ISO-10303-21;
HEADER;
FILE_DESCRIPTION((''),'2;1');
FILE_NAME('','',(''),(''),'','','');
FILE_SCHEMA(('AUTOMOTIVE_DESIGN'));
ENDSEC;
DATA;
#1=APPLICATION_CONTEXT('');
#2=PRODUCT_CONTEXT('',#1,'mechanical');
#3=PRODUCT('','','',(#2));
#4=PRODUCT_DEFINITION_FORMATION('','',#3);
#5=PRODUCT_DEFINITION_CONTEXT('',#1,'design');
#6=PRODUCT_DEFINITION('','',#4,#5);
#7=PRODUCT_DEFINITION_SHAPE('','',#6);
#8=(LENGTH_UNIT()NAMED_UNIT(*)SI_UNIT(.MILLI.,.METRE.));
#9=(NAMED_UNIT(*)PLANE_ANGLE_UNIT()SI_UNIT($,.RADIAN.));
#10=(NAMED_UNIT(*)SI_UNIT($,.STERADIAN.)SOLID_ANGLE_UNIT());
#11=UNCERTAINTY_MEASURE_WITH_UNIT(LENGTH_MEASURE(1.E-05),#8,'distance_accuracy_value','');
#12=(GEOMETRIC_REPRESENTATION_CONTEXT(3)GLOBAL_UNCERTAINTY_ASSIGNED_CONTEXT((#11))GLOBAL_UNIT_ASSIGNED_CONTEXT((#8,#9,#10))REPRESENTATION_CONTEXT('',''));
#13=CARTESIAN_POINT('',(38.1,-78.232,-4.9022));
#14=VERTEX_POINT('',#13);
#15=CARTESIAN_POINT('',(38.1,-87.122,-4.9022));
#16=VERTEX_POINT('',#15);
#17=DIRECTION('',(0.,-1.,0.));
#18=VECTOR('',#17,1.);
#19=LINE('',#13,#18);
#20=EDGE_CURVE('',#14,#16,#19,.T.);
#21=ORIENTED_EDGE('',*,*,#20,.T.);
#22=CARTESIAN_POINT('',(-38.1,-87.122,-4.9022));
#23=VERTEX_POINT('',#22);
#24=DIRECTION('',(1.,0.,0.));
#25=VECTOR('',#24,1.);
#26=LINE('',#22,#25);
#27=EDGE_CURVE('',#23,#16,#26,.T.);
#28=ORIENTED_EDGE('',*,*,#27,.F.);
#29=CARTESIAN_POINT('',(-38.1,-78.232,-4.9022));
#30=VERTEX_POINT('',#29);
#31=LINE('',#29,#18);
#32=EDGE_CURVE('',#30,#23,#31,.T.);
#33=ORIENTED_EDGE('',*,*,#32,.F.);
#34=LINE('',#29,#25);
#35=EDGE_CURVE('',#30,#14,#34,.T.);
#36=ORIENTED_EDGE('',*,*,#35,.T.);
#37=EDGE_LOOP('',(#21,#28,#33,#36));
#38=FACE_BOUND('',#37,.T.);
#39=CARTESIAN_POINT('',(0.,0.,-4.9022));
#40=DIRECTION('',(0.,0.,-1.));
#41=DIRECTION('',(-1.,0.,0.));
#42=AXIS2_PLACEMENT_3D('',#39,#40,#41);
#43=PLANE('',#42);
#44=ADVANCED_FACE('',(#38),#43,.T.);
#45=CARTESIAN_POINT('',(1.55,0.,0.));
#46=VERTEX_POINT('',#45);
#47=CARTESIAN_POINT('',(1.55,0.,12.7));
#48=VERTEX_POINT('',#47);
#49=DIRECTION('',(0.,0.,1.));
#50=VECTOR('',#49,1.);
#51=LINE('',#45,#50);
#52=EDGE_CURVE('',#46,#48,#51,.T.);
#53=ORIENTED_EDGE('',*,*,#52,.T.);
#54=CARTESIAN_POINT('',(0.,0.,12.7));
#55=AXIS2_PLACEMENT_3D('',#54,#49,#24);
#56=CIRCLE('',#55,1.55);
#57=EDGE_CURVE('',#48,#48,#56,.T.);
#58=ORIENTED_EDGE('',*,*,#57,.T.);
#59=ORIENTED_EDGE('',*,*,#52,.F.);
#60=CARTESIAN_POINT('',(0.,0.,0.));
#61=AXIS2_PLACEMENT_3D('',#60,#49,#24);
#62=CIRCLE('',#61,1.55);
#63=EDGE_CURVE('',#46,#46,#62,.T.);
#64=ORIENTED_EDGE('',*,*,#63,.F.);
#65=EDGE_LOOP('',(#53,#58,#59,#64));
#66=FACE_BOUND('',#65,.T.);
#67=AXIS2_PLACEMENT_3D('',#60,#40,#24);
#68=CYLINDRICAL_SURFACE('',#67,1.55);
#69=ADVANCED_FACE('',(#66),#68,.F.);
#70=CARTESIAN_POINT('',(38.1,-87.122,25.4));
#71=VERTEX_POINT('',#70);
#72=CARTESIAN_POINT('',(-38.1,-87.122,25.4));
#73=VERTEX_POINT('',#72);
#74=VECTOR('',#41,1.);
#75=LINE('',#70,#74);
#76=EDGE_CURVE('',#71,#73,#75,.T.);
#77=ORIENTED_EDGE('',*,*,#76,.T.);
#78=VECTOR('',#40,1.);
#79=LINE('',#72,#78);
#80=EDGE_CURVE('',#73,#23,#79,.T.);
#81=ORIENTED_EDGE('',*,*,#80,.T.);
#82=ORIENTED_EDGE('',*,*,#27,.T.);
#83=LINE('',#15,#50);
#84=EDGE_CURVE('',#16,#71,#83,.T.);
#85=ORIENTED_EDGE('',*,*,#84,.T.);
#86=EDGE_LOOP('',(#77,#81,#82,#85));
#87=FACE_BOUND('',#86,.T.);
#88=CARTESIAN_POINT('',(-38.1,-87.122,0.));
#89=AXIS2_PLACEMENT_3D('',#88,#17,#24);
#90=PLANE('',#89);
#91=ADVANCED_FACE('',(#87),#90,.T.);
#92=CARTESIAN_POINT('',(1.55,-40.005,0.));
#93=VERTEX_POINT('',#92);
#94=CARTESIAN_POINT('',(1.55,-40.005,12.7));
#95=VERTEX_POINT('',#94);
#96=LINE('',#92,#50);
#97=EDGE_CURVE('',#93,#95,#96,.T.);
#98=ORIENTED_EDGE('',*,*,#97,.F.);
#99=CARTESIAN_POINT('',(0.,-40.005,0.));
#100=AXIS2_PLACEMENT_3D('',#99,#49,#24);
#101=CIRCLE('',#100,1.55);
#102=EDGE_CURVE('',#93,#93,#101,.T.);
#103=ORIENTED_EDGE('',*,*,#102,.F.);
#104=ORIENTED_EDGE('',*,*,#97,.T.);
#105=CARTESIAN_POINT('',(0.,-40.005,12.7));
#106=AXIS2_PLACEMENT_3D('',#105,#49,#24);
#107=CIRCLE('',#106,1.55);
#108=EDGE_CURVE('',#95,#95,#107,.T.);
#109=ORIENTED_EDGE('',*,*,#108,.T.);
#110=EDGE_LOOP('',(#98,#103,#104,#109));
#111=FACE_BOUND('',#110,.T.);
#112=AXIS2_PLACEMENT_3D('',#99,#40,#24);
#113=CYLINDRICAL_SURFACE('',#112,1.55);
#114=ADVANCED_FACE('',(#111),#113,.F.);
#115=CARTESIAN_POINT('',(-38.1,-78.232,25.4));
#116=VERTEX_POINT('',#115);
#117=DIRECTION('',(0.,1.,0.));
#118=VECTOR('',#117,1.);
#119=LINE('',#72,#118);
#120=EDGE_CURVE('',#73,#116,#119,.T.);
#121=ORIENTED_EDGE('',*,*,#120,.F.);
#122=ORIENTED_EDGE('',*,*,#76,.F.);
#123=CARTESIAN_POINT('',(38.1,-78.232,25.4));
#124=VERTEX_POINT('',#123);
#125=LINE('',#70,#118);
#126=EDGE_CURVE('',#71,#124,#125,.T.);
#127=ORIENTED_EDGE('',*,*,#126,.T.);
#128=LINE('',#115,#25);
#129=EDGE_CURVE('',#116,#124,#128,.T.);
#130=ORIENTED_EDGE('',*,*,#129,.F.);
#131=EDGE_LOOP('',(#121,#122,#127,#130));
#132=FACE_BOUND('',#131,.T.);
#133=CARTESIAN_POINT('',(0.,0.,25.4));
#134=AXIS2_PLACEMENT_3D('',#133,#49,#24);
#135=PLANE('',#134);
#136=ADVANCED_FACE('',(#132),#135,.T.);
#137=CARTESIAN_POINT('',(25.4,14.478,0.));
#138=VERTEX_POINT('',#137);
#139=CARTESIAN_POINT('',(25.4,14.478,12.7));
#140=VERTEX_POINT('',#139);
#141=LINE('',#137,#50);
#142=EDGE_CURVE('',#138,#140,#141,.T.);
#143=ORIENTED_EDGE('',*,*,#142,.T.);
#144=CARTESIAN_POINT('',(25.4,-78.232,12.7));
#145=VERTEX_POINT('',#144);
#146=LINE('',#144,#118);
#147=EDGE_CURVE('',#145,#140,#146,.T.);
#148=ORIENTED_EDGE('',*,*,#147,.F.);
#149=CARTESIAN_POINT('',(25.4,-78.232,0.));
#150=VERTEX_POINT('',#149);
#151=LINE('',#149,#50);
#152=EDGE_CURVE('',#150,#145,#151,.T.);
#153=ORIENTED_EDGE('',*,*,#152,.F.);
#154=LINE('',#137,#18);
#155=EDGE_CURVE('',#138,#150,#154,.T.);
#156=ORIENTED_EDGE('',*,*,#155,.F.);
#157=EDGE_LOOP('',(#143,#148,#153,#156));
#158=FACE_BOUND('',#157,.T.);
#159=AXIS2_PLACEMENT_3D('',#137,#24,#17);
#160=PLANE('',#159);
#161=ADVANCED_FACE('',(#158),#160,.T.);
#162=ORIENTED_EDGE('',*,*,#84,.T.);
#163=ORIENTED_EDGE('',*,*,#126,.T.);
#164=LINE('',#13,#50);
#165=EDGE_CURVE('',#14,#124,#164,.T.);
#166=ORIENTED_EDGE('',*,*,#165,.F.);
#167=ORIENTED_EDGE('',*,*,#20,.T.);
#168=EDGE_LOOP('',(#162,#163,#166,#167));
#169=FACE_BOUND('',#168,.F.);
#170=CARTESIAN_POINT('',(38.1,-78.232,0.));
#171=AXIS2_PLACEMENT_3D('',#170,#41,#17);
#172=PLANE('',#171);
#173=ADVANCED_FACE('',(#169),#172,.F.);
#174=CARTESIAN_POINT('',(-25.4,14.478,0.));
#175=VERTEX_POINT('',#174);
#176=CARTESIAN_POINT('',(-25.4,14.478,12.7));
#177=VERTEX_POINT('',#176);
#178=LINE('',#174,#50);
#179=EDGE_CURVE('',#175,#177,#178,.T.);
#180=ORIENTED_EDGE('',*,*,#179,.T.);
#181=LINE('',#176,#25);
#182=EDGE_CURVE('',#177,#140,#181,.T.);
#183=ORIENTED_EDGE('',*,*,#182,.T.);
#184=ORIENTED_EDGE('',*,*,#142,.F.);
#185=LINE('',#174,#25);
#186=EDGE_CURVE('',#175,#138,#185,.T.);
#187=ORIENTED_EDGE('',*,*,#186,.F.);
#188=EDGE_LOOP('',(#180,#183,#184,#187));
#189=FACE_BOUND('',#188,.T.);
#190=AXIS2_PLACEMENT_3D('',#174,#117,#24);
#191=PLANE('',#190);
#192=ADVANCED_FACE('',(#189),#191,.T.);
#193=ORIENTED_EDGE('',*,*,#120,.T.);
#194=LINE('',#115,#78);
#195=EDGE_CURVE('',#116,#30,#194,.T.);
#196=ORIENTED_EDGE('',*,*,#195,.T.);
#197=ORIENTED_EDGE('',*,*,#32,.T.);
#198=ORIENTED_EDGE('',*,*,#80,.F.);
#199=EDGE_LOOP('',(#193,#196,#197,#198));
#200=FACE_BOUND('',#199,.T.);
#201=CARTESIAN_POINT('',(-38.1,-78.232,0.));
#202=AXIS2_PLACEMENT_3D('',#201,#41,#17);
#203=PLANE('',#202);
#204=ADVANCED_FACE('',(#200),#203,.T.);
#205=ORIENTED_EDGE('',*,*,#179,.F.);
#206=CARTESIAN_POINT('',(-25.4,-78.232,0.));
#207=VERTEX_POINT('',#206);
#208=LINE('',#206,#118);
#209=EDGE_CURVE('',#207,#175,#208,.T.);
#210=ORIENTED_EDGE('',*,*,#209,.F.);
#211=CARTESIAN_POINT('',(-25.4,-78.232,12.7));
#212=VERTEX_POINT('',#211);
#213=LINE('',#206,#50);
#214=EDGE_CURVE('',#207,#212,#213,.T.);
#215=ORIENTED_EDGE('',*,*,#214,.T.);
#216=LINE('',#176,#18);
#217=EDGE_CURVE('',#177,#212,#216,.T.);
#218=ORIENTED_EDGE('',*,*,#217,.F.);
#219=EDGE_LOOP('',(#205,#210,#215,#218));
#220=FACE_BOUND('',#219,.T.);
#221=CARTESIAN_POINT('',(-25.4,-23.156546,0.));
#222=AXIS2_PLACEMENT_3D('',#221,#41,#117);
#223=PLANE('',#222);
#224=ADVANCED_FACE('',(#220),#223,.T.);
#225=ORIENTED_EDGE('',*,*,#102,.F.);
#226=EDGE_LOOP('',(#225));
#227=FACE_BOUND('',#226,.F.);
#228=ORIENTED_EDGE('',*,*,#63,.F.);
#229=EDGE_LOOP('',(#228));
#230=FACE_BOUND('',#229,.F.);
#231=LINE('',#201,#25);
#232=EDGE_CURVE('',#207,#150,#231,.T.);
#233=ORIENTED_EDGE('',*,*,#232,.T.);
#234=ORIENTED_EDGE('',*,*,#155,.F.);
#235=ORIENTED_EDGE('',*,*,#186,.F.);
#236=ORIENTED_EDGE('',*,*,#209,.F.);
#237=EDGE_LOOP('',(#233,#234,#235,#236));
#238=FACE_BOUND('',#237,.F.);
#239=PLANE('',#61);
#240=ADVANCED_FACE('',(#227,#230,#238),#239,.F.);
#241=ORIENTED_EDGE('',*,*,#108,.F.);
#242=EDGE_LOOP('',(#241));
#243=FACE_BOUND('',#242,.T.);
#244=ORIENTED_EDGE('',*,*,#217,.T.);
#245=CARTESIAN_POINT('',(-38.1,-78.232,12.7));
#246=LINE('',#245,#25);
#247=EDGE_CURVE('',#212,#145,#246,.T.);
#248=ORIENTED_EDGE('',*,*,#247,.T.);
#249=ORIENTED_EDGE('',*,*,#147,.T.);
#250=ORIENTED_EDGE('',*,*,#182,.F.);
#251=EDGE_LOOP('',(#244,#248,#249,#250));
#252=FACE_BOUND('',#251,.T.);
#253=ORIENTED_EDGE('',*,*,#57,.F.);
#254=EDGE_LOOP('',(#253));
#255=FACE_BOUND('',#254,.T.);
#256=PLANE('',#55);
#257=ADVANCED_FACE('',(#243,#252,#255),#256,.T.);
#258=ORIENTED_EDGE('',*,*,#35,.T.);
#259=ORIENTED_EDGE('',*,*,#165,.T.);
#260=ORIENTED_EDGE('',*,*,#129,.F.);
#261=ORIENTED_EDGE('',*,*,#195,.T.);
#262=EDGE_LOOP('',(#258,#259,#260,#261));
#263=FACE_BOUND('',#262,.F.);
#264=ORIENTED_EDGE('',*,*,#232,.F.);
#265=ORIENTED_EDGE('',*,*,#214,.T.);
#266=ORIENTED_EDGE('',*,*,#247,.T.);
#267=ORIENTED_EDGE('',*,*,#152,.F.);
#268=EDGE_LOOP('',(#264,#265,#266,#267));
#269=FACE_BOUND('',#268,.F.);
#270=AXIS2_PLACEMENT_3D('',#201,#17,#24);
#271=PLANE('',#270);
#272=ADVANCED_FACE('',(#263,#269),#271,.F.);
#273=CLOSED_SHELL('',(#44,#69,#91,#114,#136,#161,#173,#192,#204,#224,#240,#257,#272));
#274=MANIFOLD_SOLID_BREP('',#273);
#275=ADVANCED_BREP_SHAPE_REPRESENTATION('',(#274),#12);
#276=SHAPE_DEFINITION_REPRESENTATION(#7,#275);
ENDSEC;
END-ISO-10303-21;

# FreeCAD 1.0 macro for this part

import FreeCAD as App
import Part
import Sketcher
Q = App.Units.Quantity

doc = App.newDocument("Part")
body = doc.addObject("PartDesign::Body", "Body")

sketch1 = body.newObject("Sketcher::SketchObject", "Sketch")
sketch1.AttachmentSupport = (doc.getObject("XY_Plane"), [""])
sketch1.MapMode = "FlatFace"
sketch1.addGeometry(Part.LineSegment(App.Vector(-25.4, 14.478, 0), App.Vector(-25.4, -78.232, 0)), False)
sketch1.addGeometry(Part.LineSegment(App.Vector(-25.4, -78.232, 0), App.Vector(-38.1, -78.232, 0)), False)
sketch1.addGeometry(Part.LineSegment(App.Vector(-38.1, -78.232, 0), App.Vector(-38.1, -87.122, 0)), False)
sketch1.addGeometry(Part.LineSegment(App.Vector(-38.1, -87.122, 0), App.Vector(38.1, -87.122, 0)), False)
sketch1.addGeometry(Part.LineSegment(App.Vector(38.1, -87.122, 0), App.Vector(38.1, -78.232, 0)), False)
sketch1.addGeometry(Part.LineSegment(App.Vector(38.1, -78.232, 0), App.Vector(25.4, -78.232, 0)), False)
sketch1.addGeometry(Part.LineSegment(App.Vector(25.4, -78.232, 0), App.Vector(25.4, 14.478, 0)), False)
sketch1.addGeometry(Part.LineSegment(App.Vector(25.4, 14.478, 0), App.Vector(-25.4, 14.478, 0)), False)
sketch1.addGeometry(Part.Circle(App.Vector(0, 0, 0), App.Vector(0, 0, 1), 1.55), False)
sketch1.addGeometry(Part.Circle(App.Vector(0, -40.005, 0), App.Vector(0, 0, 1), 1.55), False)
sketch1.addConstraint(Sketcher.Constraint("Coincident", 0, 2, 1, 1))
sketch1.addConstraint(Sketcher.Constraint("Coincident", 1, 2, 2, 1))
sketch1.addConstraint(Sketcher.Constraint("Coincident", 2, 2, 3, 1))
sketch1.addConstraint(Sketcher.Constraint("Coincident", 3, 2, 4, 1))
sketch1.addConstraint(Sketcher.Constraint("Coincident", 4, 2, 5, 1))
sketch1.addConstraint(Sketcher.Constraint("Coincident", 5, 2, 6, 1))
sketch1.addConstraint(Sketcher.Constraint("Coincident", 6, 2, 7, 1))
sketch1.addConstraint(Sketcher.Constraint("Coincident", 7, 2, 0, 1))
sketch1.addConstraint(Sketcher.Constraint("Vertical", 0))
sketch1.addConstraint(Sketcher.Constraint("Horizontal", 1))
sketch1.addConstraint(Sketcher.Constraint("Vertical", 2))
sketch1.addConstraint(Sketcher.Constraint("Horizontal", 3))
sketch1.addConstraint(Sketcher.Constraint("Vertical", 4))
sketch1.addConstraint(Sketcher.Constraint("Horizontal", 5))
sketch1.addConstraint(Sketcher.Constraint("Vertical", 6))
sketch1.addConstraint(Sketcher.Constraint("Horizontal", 7))
sketch1.addConstraint(Sketcher.Constraint("Coincident", 8, 3, -1, 1))
sketch1.addConstraint(Sketcher.Constraint("Equal", 8, 9))
sketch1.addConstraint(Sketcher.Constraint("Symmetric", 1, 2, 4, 2, -2))
sketch1.addConstraint(Sketcher.Constraint("PointOnObject", 9, 3, -2))
sketch1.addConstraint(Sketcher.Constraint("Equal", 1, 5))
sketch1.addConstraint(Sketcher.Constraint("DistanceX", 1, 2, 1, 1, Q("0.5 in")))
sketch1.addConstraint(Sketcher.Constraint("DistanceX", 0, 2, -1, 1, Q("1 in")))
sketch1.addConstraint(Sketcher.Constraint("DistanceY", 3, 2, 6, 2, Q("4 in")))
sketch1.addConstraint(Sketcher.Constraint("DistanceY", 2, 2, 2, 1, Q("0.35 in")))
sketch1.addConstraint(Sketcher.Constraint("Diameter", 8, 3.1))
sketch1.addConstraint(Sketcher.Constraint("DistanceY", -1, 1, 6, 2, Q("0.57 in")))
sketch1.addConstraint(Sketcher.Constraint("DistanceY", 9, 3, -1, 1, Q("1.575 in")))
pad1 = body.newObject("PartDesign::Pad", "Pad")
pad1.Profile = sketch1
pad1.Length = Q("0.5 in")

sketch2 = body.newObject("Sketcher::SketchObject", "Sketch001")
sketch2.AttachmentSupport = (doc.getObject("XY_Plane"), [""])
sketch2.MapMode = "FlatFace"
sketch2.AttachmentOffset = App.Placement(App.Vector(0, 0, 0.5 * 25.4), App.Rotation())
sketch2.addGeometry(Part.LineSegment(App.Vector(38.1, -78.232, 0), App.Vector(-38.1, -78.232, 0)), False)
sketch2.addGeometry(Part.LineSegment(App.Vector(-38.1, -78.232, 0), App.Vector(-38.1, -87.122, 0)), False)
sketch2.addGeometry(Part.LineSegment(App.Vector(-38.1, -87.122, 0), App.Vector(38.1, -87.122, 0)), False)
sketch2.addGeometry(Part.LineSegment(App.Vector(38.1, -87.122, 0), App.Vector(38.1, -78.232, 0)), False)
sketch2.addConstraint(Sketcher.Constraint("Coincident", 0, 2, 1, 1))
sketch2.addConstraint(Sketcher.Constraint("Coincident", 1, 2, 2, 1))
sketch2.addConstraint(Sketcher.Constraint("Coincident", 2, 2, 3, 1))
sketch2.addConstraint(Sketcher.Constraint("Coincident", 3, 2, 0, 1))
sketch2.addConstraint(Sketcher.Constraint("Horizontal", 0))
sketch2.addConstraint(Sketcher.Constraint("Vertical", 1))
sketch2.addConstraint(Sketcher.Constraint("Horizontal", 2))
sketch2.addConstraint(Sketcher.Constraint("Vertical", 3))
sketch2.addConstraint(Sketcher.Constraint("DistanceX", 0, 2, 0, 1, Q("3 in")))
sketch2.addConstraint(Sketcher.Constraint("DistanceY", 1, 2, 1, 1, Q("0.35 in")))
sketch2.addConstraint(Sketcher.Constraint("DistanceX", 0, 2, -1, 1, Q("1.5 in")))
sketch2.addConstraint(Sketcher.Constraint("DistanceY", 0, 2, -1, 1, Q("3.08 in")))
pad2 = body.newObject("PartDesign::Pad", "Pad001")
pad2.Profile = sketch2
pad2.Length = Q("0.5 in")

sketch3 = body.newObject("Sketcher::SketchObject", "Sketch002")
sketch3.AttachmentSupport = (doc.getObject("XY_Plane"), [""])
sketch3.MapMode = "FlatFace"
sketch3.addGeometry(Part.LineSegment(App.Vector(38.1, -87.122, 0), App.Vector(-38.1, -87.122, 0)), False)
sketch3.addGeometry(Part.LineSegment(App.Vector(-38.1, -87.122, 0), App.Vector(-38.1, -78.232, 0)), False)
sketch3.addGeometry(Part.LineSegment(App.Vector(-38.1, -78.232, 0), App.Vector(38.1, -78.232, 0)), False)
sketch3.addGeometry(Part.LineSegment(App.Vector(38.1, -78.232, 0), App.Vector(38.1, -87.122, 0)), False)
sketch3.addConstraint(Sketcher.Constraint("Coincident", 0, 2, 1, 1))
sketch3.addConstraint(Sketcher.Constraint("Coincident", 1, 2, 2, 1))
sketch3.addConstraint(Sketcher.Constraint("Coincident", 2, 2, 3, 1))
sketch3.addConstraint(Sketcher.Constraint("Coincident", 3, 2, 0, 1))
sketch3.addConstraint(Sketcher.Constraint("Horizontal", 0))
sketch3.addConstraint(Sketcher.Constraint("Vertical", 1))
sketch3.addConstraint(Sketcher.Constraint("Horizontal", 2))
sketch3.addConstraint(Sketcher.Constraint("Vertical", 3))
sketch3.addConstraint(Sketcher.Constraint("DistanceX", 0, 2, 0, 1, Q("3 in")))
sketch3.addConstraint(Sketcher.Constraint("DistanceY", 1, 1, 1, 2, Q("0.35 in")))
sketch3.addConstraint(Sketcher.Constraint("DistanceX", 0, 2, -1, 1, Q("1.5 in")))
sketch3.addConstraint(Sketcher.Constraint("DistanceY", 0, 2, -1, 1, Q("3.43 in")))
pad3 = body.newObject("PartDesign::Pad", "Pad002")
pad3.Profile = sketch3
pad3.Length = Q("0.193 in")
pad3.Reversed = True

doc.recompute()
